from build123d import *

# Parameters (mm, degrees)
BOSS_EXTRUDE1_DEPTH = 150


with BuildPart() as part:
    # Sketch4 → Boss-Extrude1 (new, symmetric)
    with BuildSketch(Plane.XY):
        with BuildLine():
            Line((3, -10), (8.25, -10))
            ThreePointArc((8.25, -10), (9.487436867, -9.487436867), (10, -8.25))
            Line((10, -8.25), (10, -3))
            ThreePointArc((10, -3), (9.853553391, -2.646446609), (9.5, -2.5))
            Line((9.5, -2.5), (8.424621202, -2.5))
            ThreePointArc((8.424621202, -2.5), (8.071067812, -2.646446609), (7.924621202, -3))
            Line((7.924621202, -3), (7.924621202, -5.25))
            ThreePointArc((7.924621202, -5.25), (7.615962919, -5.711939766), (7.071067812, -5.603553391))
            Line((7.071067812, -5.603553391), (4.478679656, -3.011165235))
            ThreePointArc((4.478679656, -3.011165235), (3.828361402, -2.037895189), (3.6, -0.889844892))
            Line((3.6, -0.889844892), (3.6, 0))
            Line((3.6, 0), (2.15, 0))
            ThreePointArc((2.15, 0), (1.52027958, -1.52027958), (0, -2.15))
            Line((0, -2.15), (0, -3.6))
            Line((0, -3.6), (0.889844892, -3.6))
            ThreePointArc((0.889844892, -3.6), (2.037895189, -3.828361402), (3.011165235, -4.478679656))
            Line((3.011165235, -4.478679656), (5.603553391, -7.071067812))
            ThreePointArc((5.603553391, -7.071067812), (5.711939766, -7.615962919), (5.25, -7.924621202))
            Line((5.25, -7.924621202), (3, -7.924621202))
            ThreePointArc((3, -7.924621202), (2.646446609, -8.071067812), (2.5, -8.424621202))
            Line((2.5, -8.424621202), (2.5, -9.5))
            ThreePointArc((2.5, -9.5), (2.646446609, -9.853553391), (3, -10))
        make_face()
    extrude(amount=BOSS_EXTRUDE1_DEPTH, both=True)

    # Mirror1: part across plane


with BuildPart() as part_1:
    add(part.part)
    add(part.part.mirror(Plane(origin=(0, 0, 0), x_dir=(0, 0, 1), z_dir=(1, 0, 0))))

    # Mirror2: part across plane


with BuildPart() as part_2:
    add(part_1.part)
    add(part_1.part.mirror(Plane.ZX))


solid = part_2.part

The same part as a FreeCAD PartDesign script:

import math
import FreeCAD as App
import Part
import Sketcher
from FreeCAD import Vector

doc = App.newDocument("Part")
body = doc.addObject("PartDesign::Body", "Body")

sketch1 = doc.addObject("Sketcher::SketchObject", "Sketch")
body.addObject(sketch1)
sketch1.AttachmentSupport = (doc.XY_Plane, [""])
sketch1.MapMode = "FlatFace"
sketch1.addGeometry(Part.LineSegment(Vector(3, -10, 0), Vector(8.25, -10, 0)), False)
sketch1.addGeometry(Part.ArcOfCircle(Part.Circle(Vector(8.25, -8.25, 0), Vector(0, 0, 1), 1.75), math.radians(-90), math.radians(0)), False)
sketch1.addGeometry(Part.LineSegment(Vector(10, -8.25, 0), Vector(10, -3, 0)), False)
sketch1.addGeometry(Part.ArcOfCircle(Part.Circle(Vector(9.5, -3, 0), Vector(0, 0, 1), 0.5), math.radians(0), math.radians(90)), False)
sketch1.addGeometry(Part.LineSegment(Vector(9.5, -2.5, 0), Vector(8.42, -2.5, 0)), False)
sketch1.addGeometry(Part.ArcOfCircle(Part.Circle(Vector(8.42, -3, 0), Vector(0, 0, 1), 0.5), math.radians(90), math.radians(180)), False)
sketch1.addGeometry(Part.LineSegment(Vector(7.92, -3, 0), Vector(7.92, -5.25, 0)), False)
sketch1.addGeometry(Part.ArcOfCircle(Part.Circle(Vector(7.42, -5.25, 0), Vector(0, 0, 1), 0.5), math.radians(-135), math.radians(0)), False)
sketch1.addGeometry(Part.LineSegment(Vector(7.07, -5.6, 0), Vector(4.48, -3.01, 0)), False)
sketch1.addGeometry(Part.ArcOfCircle(Part.Circle(Vector(6.6, -0.89, 0), Vector(0, 0, 1), 3), math.radians(180), math.radians(225)), False)
sketch1.addGeometry(Part.LineSegment(Vector(3.6, -0.89, 0), Vector(3.6, 0, 0)), False)
sketch1.addGeometry(Part.LineSegment(Vector(3.6, 0, 0), Vector(2.15, 0, 0)), False)
sketch1.addGeometry(Part.ArcOfCircle(Part.Circle(Vector(0, 0, 0), Vector(0, 0, 1), 2.15), math.radians(-90), math.radians(0)), False)
sketch1.addGeometry(Part.LineSegment(Vector(0, -2.15, 0), Vector(0, -3.6, 0)), False)
sketch1.addGeometry(Part.LineSegment(Vector(0, -3.6, 0), Vector(0.89, -3.6, 0)), False)
sketch1.addGeometry(Part.ArcOfCircle(Part.Circle(Vector(0.89, -6.6, 0), Vector(0, 0, 1), 3), math.radians(45), math.radians(90)), False)
sketch1.addGeometry(Part.LineSegment(Vector(3.01, -4.48, 0), Vector(5.6, -7.07, 0)), False)
sketch1.addGeometry(Part.ArcOfCircle(Part.Circle(Vector(5.25, -7.42, 0), Vector(0, 0, 1), 0.5), math.radians(-90), math.radians(45)), False)
sketch1.addGeometry(Part.LineSegment(Vector(5.25, -7.92, 0), Vector(3, -7.92, 0)), False)
sketch1.addGeometry(Part.ArcOfCircle(Part.Circle(Vector(3, -8.42, 0), Vector(0, 0, 1), 0.5), math.radians(90), math.radians(180)), False)
sketch1.addGeometry(Part.LineSegment(Vector(2.5, -8.42, 0), Vector(2.5, -9.5, 0)), False)
sketch1.addGeometry(Part.ArcOfCircle(Part.Circle(Vector(3, -9.5, 0), Vector(0, 0, 1), 0.5), math.radians(180), math.radians(270)), False)
sketch1.addConstraint(Sketcher.Constraint("Tangent", 0, 2, 1, 1))
sketch1.addConstraint(Sketcher.Constraint("Tangent", 1, 2, 2, 1))
sketch1.addConstraint(Sketcher.Constraint("Tangent", 2, 2, 3, 1))
sketch1.addConstraint(Sketcher.Constraint("Tangent", 3, 2, 4, 1))
sketch1.addConstraint(Sketcher.Constraint("Tangent", 4, 2, 5, 1))
sketch1.addConstraint(Sketcher.Constraint("Tangent", 5, 2, 6, 1))
sketch1.addConstraint(Sketcher.Constraint("Tangent", 6, 2, 7, 2))
sketch1.addConstraint(Sketcher.Constraint("Tangent", 7, 1, 8, 1))
sketch1.addConstraint(Sketcher.Constraint("Tangent", 8, 2, 9, 2))
sketch1.addConstraint(Sketcher.Constraint("Tangent", 9, 1, 10, 1))
sketch1.addConstraint(Sketcher.Constraint("Coincident", 10, 2, 11, 1))
sketch1.addConstraint(Sketcher.Constraint("Coincident", 11, 2, 12, 2))
sketch1.addConstraint(Sketcher.Constraint("Coincident", 12, 1, 13, 1))
sketch1.addConstraint(Sketcher.Constraint("Coincident", 13, 2, 14, 1))
sketch1.addConstraint(Sketcher.Constraint("Tangent", 14, 2, 15, 2))
sketch1.addConstraint(Sketcher.Constraint("Tangent", 15, 1, 16, 1))
sketch1.addConstraint(Sketcher.Constraint("Tangent", 16, 2, 17, 2))
sketch1.addConstraint(Sketcher.Constraint("Tangent", 17, 1, 18, 1))
sketch1.addConstraint(Sketcher.Constraint("Tangent", 18, 2, 19, 1))
sketch1.addConstraint(Sketcher.Constraint("Tangent", 19, 2, 20, 1))
sketch1.addConstraint(Sketcher.Constraint("Tangent", 20, 2, 21, 1))
sketch1.addConstraint(Sketcher.Constraint("Tangent", 21, 2, 0, 1))
sketch1.addConstraint(Sketcher.Constraint("Horizontal", 0))
sketch1.addConstraint(Sketcher.Constraint("Vertical", 2))
sketch1.addConstraint(Sketcher.Constraint("Horizontal", 4))
sketch1.addConstraint(Sketcher.Constraint("Vertical", 6))
sketch1.addConstraint(Sketcher.Constraint("Vertical", 10))
sketch1.addConstraint(Sketcher.Constraint("Horizontal", 11))
sketch1.addConstraint(Sketcher.Constraint("Vertical", 13))
sketch1.addConstraint(Sketcher.Constraint("Horizontal", 14))
sketch1.addConstraint(Sketcher.Constraint("Horizontal", 18))
sketch1.addConstraint(Sketcher.Constraint("Vertical", 20))
sketch1.addConstraint(Sketcher.Constraint("Coincident", 12, 3, -1, 1))
sketch1.addConstraint(Sketcher.Constraint("Equal", 3, 5))
sketch1.addConstraint(Sketcher.Constraint("Equal", 5, 7))
sketch1.addConstraint(Sketcher.Constraint("Equal", 9, 15))
sketch1.addConstraint(Sketcher.Constraint("Equal", 7, 17))
sketch1.addConstraint(Sketcher.Constraint("Equal", 17, 19))
sketch1.addConstraint(Sketcher.Constraint("Equal", 19, 21))
sketch1.addConstraint(Sketcher.Constraint("PointOnObject", 10, 2, -1))
sketch1.addConstraint(Sketcher.Constraint("PointOnObject", 12, 1, -2))
sketch1.addConstraint(Sketcher.Constraint("Parallel", 8, 16))
sketch1.addConstraint(Sketcher.Constraint("Equal", 0, 2))
sketch1.addConstraint(Sketcher.Constraint("Equal", 18, 6))
sketch1.addConstraint(Sketcher.Constraint("Equal", 14, 10))
sketch1.addConstraint(Sketcher.Constraint("Equal", 11, 13))
sketch1.addConstraint(Sketcher.Constraint("Equal", 4, 20))
sketch1.addConstraint(Sketcher.Constraint("Equal", 8, 16))
sketch1.addConstraint(Sketcher.Constraint("Radius", 9, 3.0))
sketch1.addConstraint(Sketcher.Constraint("Radius", 3, 0.5))
sketch1.addConstraint(Sketcher.Constraint("Radius", 1, 1.75))
sketch1.addConstraint(Sketcher.Constraint("Radius", 12, 2.15))
sketch1.addConstraint(Sketcher.Constraint("DistanceY", 3, 3, -1, 1, 3.0))
sketch1.addConstraint(Sketcher.Constraint("DistanceY", 0, 2, -1, 1, 10.0))
sketch1.addConstraint(Sketcher.Constraint("DistanceY", 1, 3, 7, 3, 3.0))
sketch1.addConstraint(Sketcher.Constraint("DistanceX", 11, 2, 11, 1, 1.45))
sketch1.addConstraint(Sketcher.Constraint("DistanceX", 4, 2, 4, 1, 1.075379))
pad1 = doc.addObject("PartDesign::Pad", "Pad")
body.addObject(pad1)
pad1.Profile = sketch1
pad1.Length = 300
pad1.Midplane = True
body2 = doc.addObject("PartDesign::Body", "Body001")
doc.recompute()

body2.BaseFeature = body
doc.recompute()

mirroring = doc.addObject("Part::Mirroring", "Mirroring")
mirroring.Source = body
mirroring.Base = Vector(0, 0, 0)
mirroring.Normal = Vector(1, 0, 0)
body3 = doc.addObject("PartDesign::Body", "Body002")
body3.BaseFeature = mirroring
boolean = doc.addObject("PartDesign::Boolean", "Boolean")
body2.addObject(boolean)
boolean.Type = "Fuse"
boolean.addObjects([body3])
doc.recompute()
body4 = doc.addObject("PartDesign::Body", "Body003")
doc.recompute()

body4.BaseFeature = body2
doc.recompute()

mirroring2 = doc.addObject("Part::Mirroring", "Mirroring001")
mirroring2.Source = body2
mirroring2.Base = Vector(0, 0, 0)
mirroring2.Normal = Vector(0, 1, 0)
body5 = doc.addObject("PartDesign::Body", "Body004")
body5.BaseFeature = mirroring2
boolean2 = doc.addObject("PartDesign::Boolean", "Boolean001")
body4.addObject(boolean2)
boolean2.Type = "Fuse"
boolean2.addObjects([body5])
doc.recompute()
mirroring.Visibility = False
mirroring2.Visibility = False

doc.recompute()
